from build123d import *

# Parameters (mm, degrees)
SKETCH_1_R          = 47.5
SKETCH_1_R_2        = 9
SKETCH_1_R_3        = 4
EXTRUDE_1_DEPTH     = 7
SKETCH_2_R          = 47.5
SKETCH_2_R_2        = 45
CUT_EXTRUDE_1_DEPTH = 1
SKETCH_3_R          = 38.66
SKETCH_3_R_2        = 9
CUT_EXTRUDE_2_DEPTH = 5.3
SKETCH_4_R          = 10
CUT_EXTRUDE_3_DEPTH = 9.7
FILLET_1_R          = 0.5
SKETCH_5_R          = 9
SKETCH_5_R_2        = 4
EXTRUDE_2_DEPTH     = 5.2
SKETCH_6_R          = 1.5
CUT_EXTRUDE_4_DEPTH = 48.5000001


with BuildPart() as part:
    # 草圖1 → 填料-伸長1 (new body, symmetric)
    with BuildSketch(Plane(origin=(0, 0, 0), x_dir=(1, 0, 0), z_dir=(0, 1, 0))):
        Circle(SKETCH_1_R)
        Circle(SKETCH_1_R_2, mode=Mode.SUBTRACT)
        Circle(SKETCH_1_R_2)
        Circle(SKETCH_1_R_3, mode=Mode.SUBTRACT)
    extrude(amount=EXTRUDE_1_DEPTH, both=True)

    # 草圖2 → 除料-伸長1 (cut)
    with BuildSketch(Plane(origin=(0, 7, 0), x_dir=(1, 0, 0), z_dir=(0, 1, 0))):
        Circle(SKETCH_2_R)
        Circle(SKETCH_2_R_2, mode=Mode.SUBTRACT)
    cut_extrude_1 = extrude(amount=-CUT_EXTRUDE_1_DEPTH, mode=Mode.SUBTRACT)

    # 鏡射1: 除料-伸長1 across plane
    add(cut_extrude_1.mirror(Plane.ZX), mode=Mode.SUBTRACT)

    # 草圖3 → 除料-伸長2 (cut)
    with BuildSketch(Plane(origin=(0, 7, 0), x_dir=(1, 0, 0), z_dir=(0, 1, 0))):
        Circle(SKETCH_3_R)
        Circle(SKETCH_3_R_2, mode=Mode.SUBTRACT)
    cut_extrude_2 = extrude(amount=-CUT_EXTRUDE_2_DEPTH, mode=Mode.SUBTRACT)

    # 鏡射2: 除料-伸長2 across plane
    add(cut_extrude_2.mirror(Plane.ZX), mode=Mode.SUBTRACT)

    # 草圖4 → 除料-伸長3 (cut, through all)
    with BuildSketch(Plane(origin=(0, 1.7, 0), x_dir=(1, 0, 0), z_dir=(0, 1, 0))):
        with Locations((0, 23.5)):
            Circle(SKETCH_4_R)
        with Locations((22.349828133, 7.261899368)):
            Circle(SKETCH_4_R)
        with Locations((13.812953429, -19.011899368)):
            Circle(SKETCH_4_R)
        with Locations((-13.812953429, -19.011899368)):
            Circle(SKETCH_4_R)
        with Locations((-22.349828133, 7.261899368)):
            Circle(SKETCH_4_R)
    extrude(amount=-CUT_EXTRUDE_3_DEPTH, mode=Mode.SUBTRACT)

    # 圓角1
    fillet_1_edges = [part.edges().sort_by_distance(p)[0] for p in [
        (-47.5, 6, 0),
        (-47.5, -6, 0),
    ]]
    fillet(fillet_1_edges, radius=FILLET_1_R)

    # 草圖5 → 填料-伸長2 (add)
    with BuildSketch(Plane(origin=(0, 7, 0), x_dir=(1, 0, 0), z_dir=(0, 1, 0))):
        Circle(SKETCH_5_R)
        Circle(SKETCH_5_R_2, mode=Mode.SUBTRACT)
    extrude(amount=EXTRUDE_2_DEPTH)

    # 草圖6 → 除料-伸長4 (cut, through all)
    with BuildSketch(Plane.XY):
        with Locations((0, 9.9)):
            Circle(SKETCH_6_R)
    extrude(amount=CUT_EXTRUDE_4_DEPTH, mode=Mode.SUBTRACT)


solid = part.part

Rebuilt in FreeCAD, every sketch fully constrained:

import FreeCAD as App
import Part
import Sketcher

V = App.Vector
Q = App.Units.Quantity


def edges_at(feature, points):
    """Names of the edges that pass closest to the given points."""
    edges = feature.Shape.Edges
    near = lambda p: min(range(len(edges)), key=lambda i: edges[i].distToShape(Part.Vertex(*p))[0])
    return sorted({f"Edge{near(p) + 1}" for p in points})

doc = App.newDocument("Part")
body = doc.addObject("PartDesign::Body", "Body")

# Sketch on XZ plane
sketch1 = doc.addObject("Sketcher::SketchObject", "Sketch")
body.addObject(sketch1)
sketch1.AttachmentSupport = (doc.XZ_Plane, [""])
sketch1.MapMode = "FlatFace"
sketch1.addGeometry([
    Part.Circle(V(0, 0, 0), V(0, 0, 1), 47.5),
    Part.Circle(V(0, 0, 0), V(0, 0, 1), 4),
], False)
sketch1.addConstraint([
    Sketcher.Constraint("Coincident", 0, 3, -1, 1),
    Sketcher.Constraint("Coincident", 1, 3, -1, 1),
    Sketcher.Constraint("Diameter", 0, Q("95 mm")),
    Sketcher.Constraint("Diameter", 1, Q("8 mm")),
])
pad1 = doc.addObject("PartDesign::Pad", "Pad")
body.addObject(pad1)
pad1.Profile = sketch1
pad1.Length = 14
pad1.Midplane = True

# Sketch on XZ plane
sketch2 = doc.addObject("Sketcher::SketchObject", "Sketch001")
body.addObject(sketch2)
sketch2.AttachmentSupport = (doc.XZ_Plane, [""])
sketch2.MapMode = "FlatFace"
sketch2.AttachmentOffset = App.Placement(V(0, 0, -7), App.Rotation())
sketch2.addGeometry([
    Part.Circle(V(0, 0, 0), V(0, 0, 1), 47.5),
    Part.Circle(V(0, 0, 0), V(0, 0, 1), 45),
], False)
sketch2.addConstraint([
    Sketcher.Constraint("Coincident", 0, 3, -1, 1),
    Sketcher.Constraint("Coincident", 1, 3, -1, 1),
    Sketcher.Constraint("Diameter", 0, Q("95 mm")),
    Sketcher.Constraint("Diameter", 1, Q("90 mm")),
])
pocket1 = doc.addObject("PartDesign::Pocket", "Pocket")
body.addObject(pocket1)
pocket1.Profile = sketch2
pocket1.Length = 1
pocket1.Reversed = True
doc.recompute()

mirrored = doc.addObject("PartDesign::Mirrored", "Mirrored")
body.addObject(mirrored)
mirrored.Originals = [pocket1]
mirrored.MirrorPlane = (doc.XZ_Plane, [""])
body.Tip = mirrored

# Sketch on XZ plane
sketch3 = doc.addObject("Sketcher::SketchObject", "Sketch002")
body.addObject(sketch3)
sketch3.AttachmentSupport = (doc.XZ_Plane, [""])
sketch3.MapMode = "FlatFace"
sketch3.AttachmentOffset = App.Placement(V(0, 0, -7), App.Rotation())
sketch3.addGeometry([
    Part.Circle(V(0, 0, 0), V(0, 0, 1), 38.66),
    Part.Circle(V(0, 0, 0), V(0, 0, 1), 9),
], False)
sketch3.addConstraint([
    Sketcher.Constraint("Coincident", 0, 3, -1, 1),
    Sketcher.Constraint("Coincident", 1, 3, -1, 1),
    Sketcher.Constraint("Diameter", 1, Q("18 mm")),
    Sketcher.Constraint("Diameter", 0, Q("77.32 mm")),
])
pocket2 = doc.addObject("PartDesign::Pocket", "Pocket001")
body.addObject(pocket2)
pocket2.Profile = sketch3
pocket2.Length = 5.3
pocket2.Reversed = True
doc.recompute()

mirrored2 = doc.addObject("PartDesign::Mirrored", "Mirrored001")
body.addObject(mirrored2)
mirrored2.Originals = [pocket2]
mirrored2.MirrorPlane = (doc.XZ_Plane, [""])
body.Tip = mirrored2

# Sketch on XZ plane
sketch4 = doc.addObject("Sketcher::SketchObject", "Sketch003")
body.addObject(sketch4)
sketch4.AttachmentSupport = (doc.XZ_Plane, [""])
sketch4.MapMode = "FlatFace"
sketch4.AttachmentOffset = App.Placement(V(0, 0, -1.7), App.Rotation())
sketch4.addGeometry([
    Part.Circle(V(0, -23.5, 0), V(0, 0, 1), 10),  # 0
    Part.Circle(V(22.349828, -7.261899, 0), V(0, 0, 1), 10),  # 1
    Part.Circle(V(13.812953, 19.011899, 0), V(0, 0, 1), 10),  # 2
    Part.Circle(V(-13.812953, 19.011899, 0), V(0, 0, 1), 10),  # 3
    Part.Circle(V(-22.349828, -7.261899, 0), V(0, 0, 1), 10),  # 4
], False)
sketch4.addConstraint([
    Sketcher.Constraint("Equal", 0, 1),
    Sketcher.Constraint("Equal", 1, 2),
    Sketcher.Constraint("Equal", 2, 3),
    Sketcher.Constraint("Equal", 3, 4),
    Sketcher.Constraint("Symmetric", 2, 3, 3, 3, -2),
    Sketcher.Constraint("Symmetric", 1, 3, 4, 3, -2),
    Sketcher.Constraint("PointOnObject", 0, 3, -2),
    Sketcher.Constraint("Diameter", 0, Q("20 mm")),
    Sketcher.Constraint("DistanceY", 0, 3, -1, 1, Q("23.5 mm")),
    Sketcher.Constraint("DistanceY", 1, 3, -1, 1, Q("7.261899 mm")),
    Sketcher.Constraint("DistanceY", -1, 1, 2, 3, Q("19.011899 mm")),
    Sketcher.Constraint("DistanceX", -1, 1, 1, 3, Q("22.349828 mm")),
    Sketcher.Constraint("DistanceX", 3, 3, 1, 3, Q("36.162782 mm")),
])
pocket3 = doc.addObject("PartDesign::Pocket", "Pocket002")
body.addObject(pocket3)
pocket3.Profile = sketch4
pocket3.Type = "ThroughAll"
pocket3.Reversed = True
doc.recompute()

fillet = doc.addObject("PartDesign::Fillet", "Fillet")
body.addObject(fillet)
fillet.Base = (pocket3, edges_at(pocket3, [(-47.5, 6, 0), (-47.5, -6, 0)]))
fillet.Radius = 0.5

# Sketch on XZ plane
sketch5 = doc.addObject("Sketcher::SketchObject", "Sketch004")
body.addObject(sketch5)
sketch5.AttachmentSupport = (doc.XZ_Plane, [""])
sketch5.MapMode = "FlatFace"
sketch5.AttachmentOffset = App.Placement(V(0, 0, -7), App.Rotation())
sketch5.addGeometry([
    Part.Circle(V(0, 0, 0), V(0, 0, 1), 9),
    Part.Circle(V(0, 0, 0), V(0, 0, 1), 4),
], False)
sketch5.addConstraint([
    Sketcher.Constraint("Coincident", 0, 3, -1, 1),
    Sketcher.Constraint("Coincident", 1, 3, -1, 1),
    Sketcher.Constraint("Diameter", 0, Q("18 mm")),
    Sketcher.Constraint("Diameter", 1, Q("8 mm")),
])
pad2 = doc.addObject("PartDesign::Pad", "Pad001")
body.addObject(pad2)
pad2.Profile = sketch5
pad2.Length = 5.2
pad2.Reversed = True

# Sketch on XY plane
sketch6 = doc.addObject("Sketcher::SketchObject", "Sketch005")
body.addObject(sketch6)
sketch6.AttachmentSupport = (doc.XY_Plane, [""])
sketch6.MapMode = "FlatFace"
sketch6.addGeometry(Part.Circle(V(0, 9.9, 0), V(0, 0, 1), 1.5), False)
sketch6.addConstraint([
    Sketcher.Constraint("PointOnObject", 0, 3, -2),
    Sketcher.Constraint("Diameter", 0, Q("3 mm")),
    Sketcher.Constraint("DistanceY", -1, 1, 0, 3, Q("9.9 mm")),
])
pocket4 = doc.addObject("PartDesign::Pocket", "Pocket003")
body.addObject(pocket4)
pocket4.Profile = sketch6
pocket4.Type = "ThroughAll"
pocket4.Reversed = True

doc.recompute()
